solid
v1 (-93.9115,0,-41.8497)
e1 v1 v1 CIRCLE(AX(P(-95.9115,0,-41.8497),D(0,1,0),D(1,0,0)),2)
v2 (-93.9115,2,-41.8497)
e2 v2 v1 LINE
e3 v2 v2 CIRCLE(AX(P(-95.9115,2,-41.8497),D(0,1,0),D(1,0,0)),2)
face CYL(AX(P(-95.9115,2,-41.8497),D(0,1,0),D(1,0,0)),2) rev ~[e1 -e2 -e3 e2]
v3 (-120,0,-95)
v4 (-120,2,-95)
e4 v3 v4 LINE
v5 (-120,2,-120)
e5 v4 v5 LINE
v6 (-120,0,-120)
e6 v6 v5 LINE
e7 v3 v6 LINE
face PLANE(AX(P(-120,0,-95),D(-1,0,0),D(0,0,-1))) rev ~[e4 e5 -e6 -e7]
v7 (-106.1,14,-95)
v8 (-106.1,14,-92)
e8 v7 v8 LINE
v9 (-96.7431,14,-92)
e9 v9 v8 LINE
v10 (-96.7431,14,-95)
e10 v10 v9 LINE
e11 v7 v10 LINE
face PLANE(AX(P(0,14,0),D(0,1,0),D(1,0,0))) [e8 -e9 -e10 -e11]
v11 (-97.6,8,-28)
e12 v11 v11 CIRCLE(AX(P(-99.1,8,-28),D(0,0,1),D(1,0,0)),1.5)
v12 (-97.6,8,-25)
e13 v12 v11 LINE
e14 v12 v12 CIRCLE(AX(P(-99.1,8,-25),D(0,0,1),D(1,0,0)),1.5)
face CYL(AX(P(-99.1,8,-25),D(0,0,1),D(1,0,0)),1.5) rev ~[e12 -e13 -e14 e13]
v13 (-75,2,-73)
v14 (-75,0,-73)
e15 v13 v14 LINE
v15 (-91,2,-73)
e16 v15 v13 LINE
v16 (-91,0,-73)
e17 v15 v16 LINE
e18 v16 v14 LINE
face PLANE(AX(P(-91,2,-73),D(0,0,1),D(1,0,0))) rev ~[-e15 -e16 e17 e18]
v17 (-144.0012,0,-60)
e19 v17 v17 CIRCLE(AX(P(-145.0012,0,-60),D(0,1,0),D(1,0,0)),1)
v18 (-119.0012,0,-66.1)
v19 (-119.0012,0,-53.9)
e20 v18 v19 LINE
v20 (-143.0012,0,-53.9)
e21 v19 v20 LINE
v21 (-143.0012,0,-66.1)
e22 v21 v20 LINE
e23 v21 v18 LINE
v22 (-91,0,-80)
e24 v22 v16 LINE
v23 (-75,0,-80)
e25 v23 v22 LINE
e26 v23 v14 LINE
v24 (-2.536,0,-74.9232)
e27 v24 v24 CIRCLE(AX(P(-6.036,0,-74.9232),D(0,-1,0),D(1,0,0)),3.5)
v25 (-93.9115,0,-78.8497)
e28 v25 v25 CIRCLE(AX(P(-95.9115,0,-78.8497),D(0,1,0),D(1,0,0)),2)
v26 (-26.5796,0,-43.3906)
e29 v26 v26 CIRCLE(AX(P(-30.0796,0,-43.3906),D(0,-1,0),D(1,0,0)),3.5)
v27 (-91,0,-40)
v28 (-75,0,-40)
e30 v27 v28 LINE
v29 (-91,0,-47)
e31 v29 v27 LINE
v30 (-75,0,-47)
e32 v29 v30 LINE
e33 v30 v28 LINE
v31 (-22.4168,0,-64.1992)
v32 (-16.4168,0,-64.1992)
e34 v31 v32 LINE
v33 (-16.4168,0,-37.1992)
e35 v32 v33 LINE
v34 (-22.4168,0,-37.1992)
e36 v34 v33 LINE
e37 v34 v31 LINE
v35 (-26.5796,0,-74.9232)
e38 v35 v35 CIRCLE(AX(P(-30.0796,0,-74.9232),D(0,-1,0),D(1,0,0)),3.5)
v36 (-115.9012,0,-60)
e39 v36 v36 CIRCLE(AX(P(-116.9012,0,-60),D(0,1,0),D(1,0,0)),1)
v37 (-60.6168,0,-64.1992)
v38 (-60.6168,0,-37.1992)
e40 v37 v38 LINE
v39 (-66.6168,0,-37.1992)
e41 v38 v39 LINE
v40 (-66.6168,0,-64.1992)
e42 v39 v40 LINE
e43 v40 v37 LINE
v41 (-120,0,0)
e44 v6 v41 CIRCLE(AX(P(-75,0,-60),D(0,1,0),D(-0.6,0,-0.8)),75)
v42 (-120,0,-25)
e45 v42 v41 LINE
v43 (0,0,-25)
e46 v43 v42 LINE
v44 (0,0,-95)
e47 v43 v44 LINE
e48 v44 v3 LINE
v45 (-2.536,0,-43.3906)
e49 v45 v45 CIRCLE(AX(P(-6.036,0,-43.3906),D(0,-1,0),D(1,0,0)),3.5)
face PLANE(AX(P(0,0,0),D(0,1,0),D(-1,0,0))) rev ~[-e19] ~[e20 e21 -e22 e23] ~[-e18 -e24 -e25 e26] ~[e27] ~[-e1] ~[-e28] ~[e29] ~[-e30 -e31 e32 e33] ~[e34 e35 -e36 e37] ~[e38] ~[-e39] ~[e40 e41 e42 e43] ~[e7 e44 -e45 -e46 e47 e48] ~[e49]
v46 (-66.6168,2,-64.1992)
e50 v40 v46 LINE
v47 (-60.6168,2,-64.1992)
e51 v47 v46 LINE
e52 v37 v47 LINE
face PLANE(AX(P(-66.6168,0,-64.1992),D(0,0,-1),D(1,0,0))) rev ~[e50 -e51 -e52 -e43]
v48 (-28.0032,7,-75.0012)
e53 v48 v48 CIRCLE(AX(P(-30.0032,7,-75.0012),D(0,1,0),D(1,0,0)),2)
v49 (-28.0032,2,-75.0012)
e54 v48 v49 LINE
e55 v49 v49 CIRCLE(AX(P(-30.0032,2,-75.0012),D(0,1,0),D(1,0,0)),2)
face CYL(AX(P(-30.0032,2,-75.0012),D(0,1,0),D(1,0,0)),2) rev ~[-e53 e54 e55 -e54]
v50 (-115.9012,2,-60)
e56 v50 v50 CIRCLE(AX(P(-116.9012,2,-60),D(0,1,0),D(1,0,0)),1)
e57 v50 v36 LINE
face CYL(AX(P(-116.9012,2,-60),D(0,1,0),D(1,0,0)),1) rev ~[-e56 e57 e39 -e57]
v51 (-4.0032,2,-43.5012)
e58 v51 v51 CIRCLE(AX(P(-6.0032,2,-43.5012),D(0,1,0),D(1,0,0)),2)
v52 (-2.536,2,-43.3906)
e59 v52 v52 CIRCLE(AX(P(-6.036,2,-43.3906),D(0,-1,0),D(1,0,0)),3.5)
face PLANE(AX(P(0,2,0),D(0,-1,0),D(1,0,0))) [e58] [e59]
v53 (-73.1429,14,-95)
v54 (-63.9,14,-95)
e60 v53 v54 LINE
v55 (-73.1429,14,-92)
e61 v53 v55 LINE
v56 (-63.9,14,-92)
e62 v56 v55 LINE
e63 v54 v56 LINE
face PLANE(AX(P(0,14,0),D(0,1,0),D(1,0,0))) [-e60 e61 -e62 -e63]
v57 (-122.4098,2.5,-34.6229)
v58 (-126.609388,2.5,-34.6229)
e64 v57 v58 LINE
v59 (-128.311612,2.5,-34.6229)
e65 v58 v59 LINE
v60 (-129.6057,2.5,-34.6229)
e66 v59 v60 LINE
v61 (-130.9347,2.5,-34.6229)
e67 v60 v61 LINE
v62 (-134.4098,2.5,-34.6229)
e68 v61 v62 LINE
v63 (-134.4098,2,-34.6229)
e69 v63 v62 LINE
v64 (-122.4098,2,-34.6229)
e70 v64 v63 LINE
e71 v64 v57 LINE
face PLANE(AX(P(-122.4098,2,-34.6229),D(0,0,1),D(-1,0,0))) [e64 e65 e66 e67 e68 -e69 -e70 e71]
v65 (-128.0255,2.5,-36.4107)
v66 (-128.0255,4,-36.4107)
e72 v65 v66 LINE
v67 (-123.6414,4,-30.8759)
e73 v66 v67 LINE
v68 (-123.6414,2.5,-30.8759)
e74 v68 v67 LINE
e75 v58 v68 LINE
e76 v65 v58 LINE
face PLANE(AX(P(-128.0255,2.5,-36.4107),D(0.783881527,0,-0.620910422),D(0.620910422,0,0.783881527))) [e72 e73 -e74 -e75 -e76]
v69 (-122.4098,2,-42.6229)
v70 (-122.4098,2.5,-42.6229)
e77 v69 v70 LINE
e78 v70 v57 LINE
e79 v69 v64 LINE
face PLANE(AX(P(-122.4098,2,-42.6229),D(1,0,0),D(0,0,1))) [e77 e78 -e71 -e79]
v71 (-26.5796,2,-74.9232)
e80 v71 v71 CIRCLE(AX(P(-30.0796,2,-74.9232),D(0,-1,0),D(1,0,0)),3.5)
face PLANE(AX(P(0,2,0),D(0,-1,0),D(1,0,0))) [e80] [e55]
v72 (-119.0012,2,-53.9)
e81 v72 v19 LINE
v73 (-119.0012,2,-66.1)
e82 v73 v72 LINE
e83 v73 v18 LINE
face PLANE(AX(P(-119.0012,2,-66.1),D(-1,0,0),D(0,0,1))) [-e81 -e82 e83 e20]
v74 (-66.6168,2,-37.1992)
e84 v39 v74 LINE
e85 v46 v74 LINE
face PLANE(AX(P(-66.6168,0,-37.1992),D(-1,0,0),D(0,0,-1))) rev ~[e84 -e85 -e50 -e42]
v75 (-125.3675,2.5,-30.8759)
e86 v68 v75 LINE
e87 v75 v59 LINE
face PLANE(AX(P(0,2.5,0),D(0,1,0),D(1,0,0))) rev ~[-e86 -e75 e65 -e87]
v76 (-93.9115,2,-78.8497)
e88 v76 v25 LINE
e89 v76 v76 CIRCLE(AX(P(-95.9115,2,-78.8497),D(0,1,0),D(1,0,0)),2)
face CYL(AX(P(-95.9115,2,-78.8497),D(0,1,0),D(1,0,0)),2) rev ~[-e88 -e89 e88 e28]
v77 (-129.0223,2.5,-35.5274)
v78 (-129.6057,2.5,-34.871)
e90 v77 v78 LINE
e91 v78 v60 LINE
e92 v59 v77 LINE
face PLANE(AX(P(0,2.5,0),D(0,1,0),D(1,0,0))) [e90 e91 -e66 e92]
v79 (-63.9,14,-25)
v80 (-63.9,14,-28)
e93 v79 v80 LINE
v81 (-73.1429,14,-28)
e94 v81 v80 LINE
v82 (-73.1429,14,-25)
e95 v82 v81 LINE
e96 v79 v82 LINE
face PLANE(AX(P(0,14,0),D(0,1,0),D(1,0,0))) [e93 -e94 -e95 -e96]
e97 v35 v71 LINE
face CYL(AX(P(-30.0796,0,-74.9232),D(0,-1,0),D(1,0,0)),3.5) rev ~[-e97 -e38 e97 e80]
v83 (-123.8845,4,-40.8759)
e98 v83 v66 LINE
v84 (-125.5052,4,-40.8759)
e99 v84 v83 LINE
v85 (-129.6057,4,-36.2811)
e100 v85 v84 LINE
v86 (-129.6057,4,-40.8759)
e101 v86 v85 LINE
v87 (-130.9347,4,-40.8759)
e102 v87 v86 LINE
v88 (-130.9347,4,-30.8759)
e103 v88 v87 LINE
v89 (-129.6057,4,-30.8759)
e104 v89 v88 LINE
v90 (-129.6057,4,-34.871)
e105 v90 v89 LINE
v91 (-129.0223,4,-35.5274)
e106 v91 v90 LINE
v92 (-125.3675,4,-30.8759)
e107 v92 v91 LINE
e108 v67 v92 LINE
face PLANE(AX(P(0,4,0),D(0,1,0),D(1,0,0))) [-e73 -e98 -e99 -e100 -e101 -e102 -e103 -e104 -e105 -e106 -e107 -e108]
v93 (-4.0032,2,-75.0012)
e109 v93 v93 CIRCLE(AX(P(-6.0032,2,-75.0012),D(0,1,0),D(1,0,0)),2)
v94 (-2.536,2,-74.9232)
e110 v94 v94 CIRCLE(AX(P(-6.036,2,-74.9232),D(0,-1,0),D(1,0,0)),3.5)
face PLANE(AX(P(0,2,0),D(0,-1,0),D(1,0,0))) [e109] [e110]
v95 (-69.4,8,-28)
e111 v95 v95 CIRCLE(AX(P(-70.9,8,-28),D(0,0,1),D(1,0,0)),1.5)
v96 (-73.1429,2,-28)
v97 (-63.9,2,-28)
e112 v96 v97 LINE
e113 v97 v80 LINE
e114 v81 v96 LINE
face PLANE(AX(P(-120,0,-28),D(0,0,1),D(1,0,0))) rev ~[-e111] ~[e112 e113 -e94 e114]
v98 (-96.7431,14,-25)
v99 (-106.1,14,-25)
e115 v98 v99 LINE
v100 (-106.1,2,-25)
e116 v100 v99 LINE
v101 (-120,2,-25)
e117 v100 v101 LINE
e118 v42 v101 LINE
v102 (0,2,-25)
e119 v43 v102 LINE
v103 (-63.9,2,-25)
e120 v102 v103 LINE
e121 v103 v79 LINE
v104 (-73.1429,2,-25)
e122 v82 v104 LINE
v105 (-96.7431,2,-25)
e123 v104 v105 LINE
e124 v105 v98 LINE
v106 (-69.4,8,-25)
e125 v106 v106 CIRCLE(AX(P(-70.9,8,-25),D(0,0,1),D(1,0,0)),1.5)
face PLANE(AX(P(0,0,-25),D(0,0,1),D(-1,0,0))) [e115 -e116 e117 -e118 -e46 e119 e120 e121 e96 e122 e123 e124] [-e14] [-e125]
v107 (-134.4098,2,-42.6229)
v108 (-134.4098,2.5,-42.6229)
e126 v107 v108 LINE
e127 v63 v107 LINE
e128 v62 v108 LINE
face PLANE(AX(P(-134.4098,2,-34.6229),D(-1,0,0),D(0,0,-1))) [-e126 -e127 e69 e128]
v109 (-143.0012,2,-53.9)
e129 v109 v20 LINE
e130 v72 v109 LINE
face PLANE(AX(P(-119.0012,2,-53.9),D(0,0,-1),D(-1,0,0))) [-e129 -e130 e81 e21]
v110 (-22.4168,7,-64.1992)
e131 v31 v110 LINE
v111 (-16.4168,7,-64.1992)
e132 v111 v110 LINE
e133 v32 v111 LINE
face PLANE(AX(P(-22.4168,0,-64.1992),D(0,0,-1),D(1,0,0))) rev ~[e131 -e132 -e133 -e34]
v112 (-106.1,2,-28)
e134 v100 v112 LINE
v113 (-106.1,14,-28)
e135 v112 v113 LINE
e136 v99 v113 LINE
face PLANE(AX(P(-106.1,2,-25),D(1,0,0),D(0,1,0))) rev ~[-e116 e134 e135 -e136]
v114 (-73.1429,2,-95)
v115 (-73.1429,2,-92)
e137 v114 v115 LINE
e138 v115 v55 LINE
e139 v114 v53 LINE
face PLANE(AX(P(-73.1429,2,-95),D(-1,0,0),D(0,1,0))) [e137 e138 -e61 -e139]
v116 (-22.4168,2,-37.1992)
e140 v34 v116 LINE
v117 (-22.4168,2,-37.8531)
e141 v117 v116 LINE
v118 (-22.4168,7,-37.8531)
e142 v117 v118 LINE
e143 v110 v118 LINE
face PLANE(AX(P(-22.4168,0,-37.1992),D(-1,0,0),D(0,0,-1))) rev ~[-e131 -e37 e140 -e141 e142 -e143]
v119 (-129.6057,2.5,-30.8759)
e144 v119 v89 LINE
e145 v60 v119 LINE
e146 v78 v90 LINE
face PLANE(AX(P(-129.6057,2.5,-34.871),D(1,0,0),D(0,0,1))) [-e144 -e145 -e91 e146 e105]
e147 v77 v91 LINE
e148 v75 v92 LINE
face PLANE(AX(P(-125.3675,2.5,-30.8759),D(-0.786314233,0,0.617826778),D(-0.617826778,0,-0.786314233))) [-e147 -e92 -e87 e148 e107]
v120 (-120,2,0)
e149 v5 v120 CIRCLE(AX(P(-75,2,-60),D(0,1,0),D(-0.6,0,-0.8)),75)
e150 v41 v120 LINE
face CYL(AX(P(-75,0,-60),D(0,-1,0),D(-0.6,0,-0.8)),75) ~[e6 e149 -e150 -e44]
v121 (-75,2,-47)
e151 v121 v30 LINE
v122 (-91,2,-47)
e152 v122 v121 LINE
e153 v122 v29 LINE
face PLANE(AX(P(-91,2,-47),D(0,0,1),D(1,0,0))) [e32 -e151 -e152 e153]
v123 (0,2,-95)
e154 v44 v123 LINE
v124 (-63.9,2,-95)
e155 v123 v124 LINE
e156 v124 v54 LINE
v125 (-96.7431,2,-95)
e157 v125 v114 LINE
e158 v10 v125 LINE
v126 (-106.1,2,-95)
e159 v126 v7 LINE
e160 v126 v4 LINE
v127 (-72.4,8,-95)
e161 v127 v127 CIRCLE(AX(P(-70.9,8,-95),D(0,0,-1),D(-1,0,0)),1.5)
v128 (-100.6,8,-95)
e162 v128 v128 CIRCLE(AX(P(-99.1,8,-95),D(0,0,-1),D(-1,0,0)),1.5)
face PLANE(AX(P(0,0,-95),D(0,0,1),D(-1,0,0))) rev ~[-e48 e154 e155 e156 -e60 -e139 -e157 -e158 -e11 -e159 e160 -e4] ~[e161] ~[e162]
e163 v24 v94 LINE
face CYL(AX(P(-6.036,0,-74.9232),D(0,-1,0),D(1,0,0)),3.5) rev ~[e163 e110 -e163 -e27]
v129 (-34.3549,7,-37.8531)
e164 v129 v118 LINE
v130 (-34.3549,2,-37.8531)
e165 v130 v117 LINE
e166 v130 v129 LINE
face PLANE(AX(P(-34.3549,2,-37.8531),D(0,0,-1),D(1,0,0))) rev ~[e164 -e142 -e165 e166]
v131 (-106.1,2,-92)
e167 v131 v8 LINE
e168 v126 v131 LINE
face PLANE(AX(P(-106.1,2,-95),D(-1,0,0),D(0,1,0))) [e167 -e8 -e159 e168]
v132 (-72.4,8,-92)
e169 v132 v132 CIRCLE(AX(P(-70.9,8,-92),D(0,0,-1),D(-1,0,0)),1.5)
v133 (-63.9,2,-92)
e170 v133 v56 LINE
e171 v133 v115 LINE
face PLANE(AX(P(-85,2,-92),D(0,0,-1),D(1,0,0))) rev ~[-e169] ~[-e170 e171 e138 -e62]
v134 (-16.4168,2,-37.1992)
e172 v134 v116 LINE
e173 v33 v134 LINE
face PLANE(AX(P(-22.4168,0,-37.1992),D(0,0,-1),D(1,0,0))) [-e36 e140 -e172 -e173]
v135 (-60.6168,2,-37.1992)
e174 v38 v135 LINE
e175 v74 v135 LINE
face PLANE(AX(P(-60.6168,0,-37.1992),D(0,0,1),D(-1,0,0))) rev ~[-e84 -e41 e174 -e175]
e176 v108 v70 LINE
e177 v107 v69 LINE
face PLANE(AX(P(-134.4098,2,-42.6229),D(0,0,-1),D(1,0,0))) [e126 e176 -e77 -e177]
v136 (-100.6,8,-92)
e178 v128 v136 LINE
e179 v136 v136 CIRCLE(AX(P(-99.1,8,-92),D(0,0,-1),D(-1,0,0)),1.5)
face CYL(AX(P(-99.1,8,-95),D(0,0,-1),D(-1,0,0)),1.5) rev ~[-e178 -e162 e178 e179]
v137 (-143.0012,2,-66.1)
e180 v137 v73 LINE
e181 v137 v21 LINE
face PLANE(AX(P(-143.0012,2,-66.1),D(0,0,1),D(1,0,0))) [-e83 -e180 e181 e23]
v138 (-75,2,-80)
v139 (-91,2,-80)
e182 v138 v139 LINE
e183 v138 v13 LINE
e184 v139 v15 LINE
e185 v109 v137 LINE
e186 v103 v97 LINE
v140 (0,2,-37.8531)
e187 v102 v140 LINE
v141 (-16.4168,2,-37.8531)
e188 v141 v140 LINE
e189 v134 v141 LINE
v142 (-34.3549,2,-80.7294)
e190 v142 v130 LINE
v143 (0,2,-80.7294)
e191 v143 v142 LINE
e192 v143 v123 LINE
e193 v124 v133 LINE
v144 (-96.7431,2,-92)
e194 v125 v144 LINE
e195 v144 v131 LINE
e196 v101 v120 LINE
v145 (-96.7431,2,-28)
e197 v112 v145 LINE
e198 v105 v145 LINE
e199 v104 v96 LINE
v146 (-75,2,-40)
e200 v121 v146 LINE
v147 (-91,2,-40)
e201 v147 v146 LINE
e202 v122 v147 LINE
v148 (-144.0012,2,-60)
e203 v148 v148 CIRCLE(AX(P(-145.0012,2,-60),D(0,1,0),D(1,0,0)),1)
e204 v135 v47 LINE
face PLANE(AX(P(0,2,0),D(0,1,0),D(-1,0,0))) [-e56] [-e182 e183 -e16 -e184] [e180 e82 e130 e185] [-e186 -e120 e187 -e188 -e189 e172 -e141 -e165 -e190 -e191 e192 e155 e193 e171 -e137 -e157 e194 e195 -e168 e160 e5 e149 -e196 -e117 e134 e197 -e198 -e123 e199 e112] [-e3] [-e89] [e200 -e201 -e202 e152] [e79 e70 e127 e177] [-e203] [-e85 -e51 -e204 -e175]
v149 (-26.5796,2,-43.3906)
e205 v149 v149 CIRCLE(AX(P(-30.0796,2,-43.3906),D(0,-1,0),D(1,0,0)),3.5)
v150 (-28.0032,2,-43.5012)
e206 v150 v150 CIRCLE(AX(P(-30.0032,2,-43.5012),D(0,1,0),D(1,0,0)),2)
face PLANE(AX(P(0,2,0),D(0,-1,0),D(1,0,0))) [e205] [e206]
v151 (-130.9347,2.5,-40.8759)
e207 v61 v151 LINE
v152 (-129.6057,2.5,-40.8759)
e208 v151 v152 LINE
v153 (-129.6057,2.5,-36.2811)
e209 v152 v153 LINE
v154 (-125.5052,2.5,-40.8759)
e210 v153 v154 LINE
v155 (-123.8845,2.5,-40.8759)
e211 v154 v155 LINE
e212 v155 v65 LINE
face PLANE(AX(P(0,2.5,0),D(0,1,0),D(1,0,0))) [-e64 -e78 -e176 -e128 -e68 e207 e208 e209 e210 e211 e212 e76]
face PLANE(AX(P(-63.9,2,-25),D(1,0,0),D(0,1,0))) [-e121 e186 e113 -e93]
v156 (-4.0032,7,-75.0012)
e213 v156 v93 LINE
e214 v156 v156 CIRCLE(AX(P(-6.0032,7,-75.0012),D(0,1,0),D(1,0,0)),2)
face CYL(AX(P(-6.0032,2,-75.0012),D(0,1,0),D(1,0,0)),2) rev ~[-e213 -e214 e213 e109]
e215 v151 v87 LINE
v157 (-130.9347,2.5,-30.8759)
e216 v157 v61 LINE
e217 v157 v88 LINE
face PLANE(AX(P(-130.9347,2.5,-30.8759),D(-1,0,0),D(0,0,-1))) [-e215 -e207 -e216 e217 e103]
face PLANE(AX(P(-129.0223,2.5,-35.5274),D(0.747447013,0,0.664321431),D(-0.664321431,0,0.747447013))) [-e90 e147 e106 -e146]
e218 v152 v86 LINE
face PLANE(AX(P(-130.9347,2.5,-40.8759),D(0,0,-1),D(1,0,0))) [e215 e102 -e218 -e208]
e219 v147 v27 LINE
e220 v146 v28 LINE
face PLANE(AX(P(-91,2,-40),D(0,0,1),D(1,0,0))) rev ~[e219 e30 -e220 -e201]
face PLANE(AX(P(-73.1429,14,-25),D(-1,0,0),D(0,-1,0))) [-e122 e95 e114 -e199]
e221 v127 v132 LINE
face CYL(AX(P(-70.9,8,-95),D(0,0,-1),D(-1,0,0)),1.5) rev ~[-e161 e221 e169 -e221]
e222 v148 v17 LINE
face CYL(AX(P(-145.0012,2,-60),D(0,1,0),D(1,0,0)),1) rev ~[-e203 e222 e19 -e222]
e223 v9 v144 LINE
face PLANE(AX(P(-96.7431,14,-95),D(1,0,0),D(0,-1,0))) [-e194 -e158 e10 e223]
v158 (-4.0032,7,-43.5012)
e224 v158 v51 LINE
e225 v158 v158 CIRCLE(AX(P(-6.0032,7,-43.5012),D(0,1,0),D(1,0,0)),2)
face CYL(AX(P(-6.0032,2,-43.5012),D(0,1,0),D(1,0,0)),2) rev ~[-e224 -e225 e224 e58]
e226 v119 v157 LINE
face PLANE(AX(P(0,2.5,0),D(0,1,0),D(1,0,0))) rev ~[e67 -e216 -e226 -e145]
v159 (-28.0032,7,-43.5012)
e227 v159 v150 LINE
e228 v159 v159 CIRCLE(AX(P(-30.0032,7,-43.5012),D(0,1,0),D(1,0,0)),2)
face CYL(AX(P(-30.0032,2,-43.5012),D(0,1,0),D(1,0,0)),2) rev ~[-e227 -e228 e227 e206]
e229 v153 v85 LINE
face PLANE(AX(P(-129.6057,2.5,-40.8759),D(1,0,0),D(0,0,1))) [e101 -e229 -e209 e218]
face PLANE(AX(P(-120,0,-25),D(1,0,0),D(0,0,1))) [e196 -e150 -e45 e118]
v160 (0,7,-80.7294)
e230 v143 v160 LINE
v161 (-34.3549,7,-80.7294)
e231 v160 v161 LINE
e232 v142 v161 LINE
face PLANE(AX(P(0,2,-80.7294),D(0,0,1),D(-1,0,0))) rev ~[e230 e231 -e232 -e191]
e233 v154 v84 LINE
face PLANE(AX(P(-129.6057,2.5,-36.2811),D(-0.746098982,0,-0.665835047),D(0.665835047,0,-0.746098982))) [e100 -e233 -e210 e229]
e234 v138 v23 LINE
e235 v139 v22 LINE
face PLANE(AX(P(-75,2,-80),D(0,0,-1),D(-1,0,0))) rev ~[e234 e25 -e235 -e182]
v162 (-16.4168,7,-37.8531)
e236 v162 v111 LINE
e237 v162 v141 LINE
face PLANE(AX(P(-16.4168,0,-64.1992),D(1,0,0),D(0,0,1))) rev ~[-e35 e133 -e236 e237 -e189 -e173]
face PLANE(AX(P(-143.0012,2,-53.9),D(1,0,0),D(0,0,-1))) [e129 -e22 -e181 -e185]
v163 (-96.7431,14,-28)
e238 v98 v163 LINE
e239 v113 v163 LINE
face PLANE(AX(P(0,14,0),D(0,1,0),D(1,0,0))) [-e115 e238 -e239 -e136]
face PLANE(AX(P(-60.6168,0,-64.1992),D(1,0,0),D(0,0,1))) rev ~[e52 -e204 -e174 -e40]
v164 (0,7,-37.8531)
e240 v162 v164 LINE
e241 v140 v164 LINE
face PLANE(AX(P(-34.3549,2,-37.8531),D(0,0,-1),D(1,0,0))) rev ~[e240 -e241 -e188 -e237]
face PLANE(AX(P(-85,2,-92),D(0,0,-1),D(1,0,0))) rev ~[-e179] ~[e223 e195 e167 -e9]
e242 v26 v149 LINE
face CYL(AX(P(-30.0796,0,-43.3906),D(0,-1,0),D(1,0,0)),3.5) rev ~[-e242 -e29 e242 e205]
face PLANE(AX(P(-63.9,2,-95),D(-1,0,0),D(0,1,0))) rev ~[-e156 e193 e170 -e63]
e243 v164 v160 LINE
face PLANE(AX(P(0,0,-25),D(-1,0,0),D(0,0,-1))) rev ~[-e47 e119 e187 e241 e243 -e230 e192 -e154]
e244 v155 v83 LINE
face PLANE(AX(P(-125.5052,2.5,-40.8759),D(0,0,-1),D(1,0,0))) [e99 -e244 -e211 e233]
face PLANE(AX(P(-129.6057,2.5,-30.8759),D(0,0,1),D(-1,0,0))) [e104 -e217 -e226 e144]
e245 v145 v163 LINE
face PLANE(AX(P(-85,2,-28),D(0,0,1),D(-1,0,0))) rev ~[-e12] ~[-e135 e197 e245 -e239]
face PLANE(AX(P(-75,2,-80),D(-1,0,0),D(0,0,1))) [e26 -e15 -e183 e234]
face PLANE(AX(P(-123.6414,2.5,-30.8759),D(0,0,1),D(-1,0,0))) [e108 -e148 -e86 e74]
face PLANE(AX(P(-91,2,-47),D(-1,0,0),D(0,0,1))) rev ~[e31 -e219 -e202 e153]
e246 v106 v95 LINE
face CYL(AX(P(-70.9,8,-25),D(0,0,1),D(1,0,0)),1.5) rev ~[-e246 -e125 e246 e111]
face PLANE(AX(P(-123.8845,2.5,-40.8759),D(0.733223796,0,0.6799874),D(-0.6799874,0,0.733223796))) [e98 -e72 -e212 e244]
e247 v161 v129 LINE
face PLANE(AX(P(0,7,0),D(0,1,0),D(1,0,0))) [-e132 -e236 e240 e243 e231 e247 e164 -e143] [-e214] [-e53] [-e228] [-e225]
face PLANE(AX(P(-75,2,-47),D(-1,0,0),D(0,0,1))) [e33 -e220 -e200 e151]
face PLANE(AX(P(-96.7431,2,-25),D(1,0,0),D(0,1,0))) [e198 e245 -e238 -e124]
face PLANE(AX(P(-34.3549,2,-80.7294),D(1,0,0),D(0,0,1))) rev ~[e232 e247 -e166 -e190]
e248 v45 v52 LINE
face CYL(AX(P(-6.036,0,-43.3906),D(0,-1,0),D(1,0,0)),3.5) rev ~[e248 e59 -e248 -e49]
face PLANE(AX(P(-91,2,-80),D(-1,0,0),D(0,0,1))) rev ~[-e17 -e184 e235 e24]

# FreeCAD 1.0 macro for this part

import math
import FreeCAD as App
import Part
import Sketcher

V = App.Vector
Q = App.Units.Quantity

doc = App.newDocument("Part")
body = doc.addObject("PartDesign::Body", "Body")

sketch1 = doc.addObject("Sketcher::SketchObject", "Sketch")
body.addObject(sketch1)
sketch1.AttachmentSupport = (doc.XZ_Plane, [""])
sketch1.MapMode = "FlatFace"
sketch1.addGeometry([
    Part.LineSegment(V(-120, -95, 0), V(-120, -120, 0)),
    Part.ArcOfCircle(Part.Circle(V(-75, -60, 0), V(0, 0, 1), 75), math.radians(126.869898), math.radians(233.130102)),
    Part.LineSegment(V(-120, 0, 0), V(-120, -25, 0)),
    Part.LineSegment(V(-120, -25, 0), V(0, -25, 0)),
    Part.LineSegment(V(0, -25, 0), V(0, -95, 0)),
    Part.LineSegment(V(0, -95, 0), V(-120, -95, 0)),
], False)
sketch1.addConstraint([
    Sketcher.Constraint("Coincident", 0, 2, 1, 2),
    Sketcher.Constraint("Coincident", 1, 1, 2, 1),
    Sketcher.Constraint("Coincident", 2, 2, 3, 1),
    Sketcher.Constraint("Coincident", 3, 2, 4, 1),
    Sketcher.Constraint("Coincident", 4, 2, 5, 1),
    Sketcher.Constraint("Coincident", 5, 2, 0, 1),
    Sketcher.Constraint("Vertical", 0),
    Sketcher.Constraint("Vertical", 2),
    Sketcher.Constraint("Horizontal", 3),
    Sketcher.Constraint("Vertical", 4),
    Sketcher.Constraint("Horizontal", 5),
    Sketcher.Constraint("PointOnObject", 1, 1, -1),
    Sketcher.Constraint("PointOnObject", 3, 2, -2),
    Sketcher.Constraint("Vertical", 0, 2, 1, 1),
    Sketcher.Constraint("Equal", 0, 2),
    Sketcher.Constraint("Radius", 1, Q("75 mm")),
    Sketcher.Constraint("DistanceX", 3, 1, 3, 2, Q("120 mm")),
    Sketcher.Constraint("DistanceY", 0, 2, 0, 1, Q("25 mm")),
    Sketcher.Constraint("DistanceX", 1, 3, -1, 1, Q("75 mm")),
])
pad1 = doc.addObject("PartDesign::Pad", "Pad")
body.addObject(pad1)
pad1.Profile = sketch1
pad1.Length = 2
pad1.Reversed = True

sketch2 = doc.addObject("Sketcher::SketchObject", "Sketch001")
body.addObject(sketch2)
sketch2.AttachmentSupport = (doc.XZ_Plane, [""])
sketch2.MapMode = "FlatFace"
sketch2.AttachmentOffset = App.Placement(V(0, 0, -2), App.Rotation())
sketch2.addGeometry([
    Part.Circle(V(-30.0032, -43.5012, 0), V(0, 0, 1), 2),
    Part.Circle(V(-30.0032, -75.0012, 0), V(0, 0, 1), 2),
    Part.Circle(V(-6.0032, -75.0012, 0), V(0, 0, 1), 2),
    Part.Circle(V(-6.0032, -43.5012, 0), V(0, 0, 1), 2),
], False)
sketch2.addConstraint([
    Sketcher.Constraint("Equal", 0, 1),
    Sketcher.Constraint("Equal", 1, 2),
    Sketcher.Constraint("Equal", 2, 3),
    Sketcher.Constraint("Horizontal", 1, 3, 2, 3),
    Sketcher.Constraint("Horizontal", 0, 3, 3, 3),
    Sketcher.Constraint("Vertical", 0, 3, 1, 3),
    Sketcher.Constraint("Vertical", 2, 3, 3, 3),
    Sketcher.Constraint("Diameter", 0, Q("4 mm")),
    Sketcher.Constraint("DistanceX", 1, 3, 2, 3, Q("24 mm")),
    Sketcher.Constraint("DistanceY", 1, 3, 0, 3, Q("31.5 mm")),
    Sketcher.Constraint("DistanceX", 2, 3, -1, 1, Q("6.0032 mm")),
    Sketcher.Constraint("DistanceY", 0, 3, -1, 1, Q("43.5012 mm")),
])
pocket1 = doc.addObject("PartDesign::Pocket", "Pocket")
body.addObject(pocket1)
pocket1.Profile = sketch2
pocket1.Length = 11
pocket1.Reversed = True

sketch3 = doc.addObject("Sketcher::SketchObject", "Sketch002")
body.addObject(sketch3)
sketch3.AttachmentSupport = (doc.XZ_Plane, [""])
sketch3.MapMode = "FlatFace"
sketch3.AttachmentOffset = App.Placement(V(0, 0, -2), App.Rotation())
sketch3.addGeometry([
    Part.LineSegment(V(-75, -73, 0), V(-75, -80, 0)),
    Part.LineSegment(V(-75, -80, 0), V(-91, -80, 0)),
    Part.LineSegment(V(-91, -80, 0), V(-91, -73, 0)),
    Part.LineSegment(V(-91, -73, 0), V(-75, -73, 0)),
    Part.LineSegment(V(-91, -47, 0), V(-91, -40, 0)),
    Part.LineSegment(V(-91, -40, 0), V(-75, -40, 0)),
    Part.LineSegment(V(-75, -40, 0), V(-75, -47, 0)),
    Part.LineSegment(V(-75, -47, 0), V(-91, -47, 0)),
], False)
sketch3.addConstraint([
    Sketcher.Constraint("Coincident", 0, 2, 1, 1),
    Sketcher.Constraint("Coincident", 1, 2, 2, 1),
    Sketcher.Constraint("Coincident", 2, 2, 3, 1),
    Sketcher.Constraint("Coincident", 3, 2, 0, 1),
    Sketcher.Constraint("Coincident", 4, 2, 5, 1),
    Sketcher.Constraint("Coincident", 5, 2, 6, 1),
    Sketcher.Constraint("Coincident", 6, 2, 7, 1),
    Sketcher.Constraint("Coincident", 7, 2, 4, 1),
    Sketcher.Constraint("Vertical", 0),
    Sketcher.Constraint("Horizontal", 1),
    Sketcher.Constraint("Vertical", 2),
    Sketcher.Constraint("Horizontal", 3),
    Sketcher.Constraint("Vertical", 4),
    Sketcher.Constraint("Horizontal", 5),
    Sketcher.Constraint("Vertical", 6),
    Sketcher.Constraint("Horizontal", 7),
    Sketcher.Constraint("Vertical", 2, 2, 4, 2),
    Sketcher.Constraint("Vertical", 3, 2, 5, 2),
    Sketcher.Constraint("Equal", 2, 4),
    Sketcher.Constraint("DistanceX", 1, 2, 1, 1, Q("16 mm")),
    Sketcher.Constraint("DistanceY", 0, 2, 0, 1, Q("7 mm")),
    Sketcher.Constraint("DistanceX", 0, 2, -1, 1, Q("75 mm")),
    Sketcher.Constraint("DistanceY", 0, 2, -1, 1, Q("80 mm")),
    Sketcher.Constraint("DistanceY", 4, 2, -1, 1, Q("40 mm")),
])
pocket2 = doc.addObject("PartDesign::Pocket", "Pocket001")
body.addObject(pocket2)
pocket2.Profile = sketch3
pocket2.Length = 3
pocket2.Reversed = True

sketch4 = doc.addObject("Sketcher::SketchObject", "Sketch003")
body.addObject(sketch4)
sketch4.AttachmentSupport = (doc.XZ_Plane, [""])
sketch4.MapMode = "FlatFace"
sketch4.AttachmentOffset = App.Placement(V(0, 0, -2), App.Rotation())
sketch4.addGeometry([
    Part.LineSegment(V(-101.1, -25, 0), V(-68.9, -25, 0)),
    Part.LineSegment(V(-68.9, -25, 0), V(-68.9, -28, 0)),
    Part.LineSegment(V(-68.9, -28, 0), V(-101.1, -28, 0)),
    Part.LineSegment(V(-101.1, -28, 0), V(-101.1, -25, 0)),
    Part.LineSegment(V(-68.9, -95, 0), V(-101.1, -95, 0)),
    Part.LineSegment(V(-101.1, -95, 0), V(-101.1, -92, 0)),
    Part.LineSegment(V(-101.1, -92, 0), V(-68.9, -92, 0)),
    Part.LineSegment(V(-68.9, -92, 0), V(-68.9, -95, 0)),
], False)
sketch4.addConstraint([
    Sketcher.Constraint("Coincident", 0, 2, 1, 1),
    Sketcher.Constraint("Coincident", 1, 2, 2, 1),
    Sketcher.Constraint("Coincident", 2, 2, 3, 1),
    Sketcher.Constraint("Coincident", 3, 2, 0, 1),
    Sketcher.Constraint("Coincident", 4, 2, 5, 1),
    Sketcher.Constraint("Coincident", 5, 2, 6, 1),
    Sketcher.Constraint("Coincident", 6, 2, 7, 1),
    Sketcher.Constraint("Coincident", 7, 2, 4, 1),
    Sketcher.Constraint("Horizontal", 0),
    Sketcher.Constraint("Vertical", 1),
    Sketcher.Constraint("Horizontal", 2),
    Sketcher.Constraint("Vertical", 3),
    Sketcher.Constraint("Horizontal", 4),
    Sketcher.Constraint("Vertical", 5),
    Sketcher.Constraint("Horizontal", 6),
    Sketcher.Constraint("Vertical", 7),
    Sketcher.Constraint("Vertical", 3, 2, 4, 2),
    Sketcher.Constraint("Vertical", 1, 2, 6, 2),
    Sketcher.Constraint("Equal", 3, 5),
    Sketcher.Constraint("DistanceY", 1, 2, 1, 1, Q("3 mm")),
    Sketcher.Constraint("DistanceY", 4, 2, 2, 2, Q("67 mm")),
    Sketcher.Constraint("DistanceX", 0, 2, -1, 1, Q("68.9 mm")),
    Sketcher.Constraint("DistanceX", 0, 1, 0, 2, Q("32.2 mm")),
    Sketcher.Constraint("DistanceY", 0, 2, -1, 1, Q("25 mm")),
])
pad2 = doc.addObject("PartDesign::Pad", "Pad001")
body.addObject(pad2)
pad2.Profile = sketch4
pad2.Length = 12
pad2.Reversed = True

sketch5 = doc.addObject("Sketcher::SketchObject", "Sketch004")
body.addObject(sketch5)
sketch5.AttachmentSupport = (doc.XY_Plane, [""])
sketch5.MapMode = "FlatFace"
sketch5.AttachmentOffset = App.Placement(V(0, 0, -25), App.Rotation())
sketch5.addGeometry([
    Part.Circle(V(-99.1, 8, 0), V(0, 0, 1), 1.5),
    Part.Circle(V(-70.9, 8, 0), V(0, 0, 1), 1.5),
], False)
sketch5.addConstraint([
    Sketcher.Constraint("Equal", 0, 1),
    Sketcher.Constraint("Horizontal", 0, 3, 1, 3),
    Sketcher.Constraint("Diameter", 0, Q("3 mm")),
    Sketcher.Constraint("DistanceY", -1, 1, 0, 3, Q("8 mm")),
    Sketcher.Constraint("DistanceX", 0, 3, -1, 1, Q("99.1 mm")),
    Sketcher.Constraint("DistanceX", 1, 3, -1, 1, Q("70.9 mm")),
])
pocket3 = doc.addObject("PartDesign::Pocket", "Pocket002")
body.addObject(pocket3)
pocket3.Profile = sketch5
pocket3.Length = 3

sketch6 = doc.addObject("Sketcher::SketchObject", "Sketch005")
body.addObject(sketch6)
sketch6.AttachmentSupport = (doc.XY_Plane, [""])
sketch6.MapMode = "FlatFace"
sketch6.AttachmentOffset = App.Placement(V(0, 0, -95), App.Rotation())
sketch6.addGeometry([
    Part.Circle(V(-70.9, 8, 0), V(0, 0, 1), 1.5),
    Part.Circle(V(-99.1, 8, 0), V(0, 0, 1), 1.5),
], False)
sketch6.addConstraint([
    Sketcher.Constraint("Equal", 0, 1),
    Sketcher.Constraint("Horizontal", 0, 3, 1, 3),
    Sketcher.Constraint("Diameter", 0, Q("3 mm")),
    Sketcher.Constraint("DistanceY", -1, 1, 0, 3, Q("8 mm")),
    Sketcher.Constraint("DistanceX", 0, 3, -1, 1, Q("70.9 mm")),
    Sketcher.Constraint("DistanceX", 1, 3, -1, 1, Q("99.1 mm")),
])
pocket4 = doc.addObject("PartDesign::Pocket", "Pocket003")
body.addObject(pocket4)
pocket4.Profile = sketch6
pocket4.Length = 3
pocket4.Reversed = True

sketch7 = doc.addObject("Sketcher::SketchObject", "Sketch006")
body.addObject(sketch7)
sketch7.AttachmentSupport = (doc.XZ_Plane, [""])
sketch7.MapMode = "FlatFace"
sketch7.AttachmentOffset = App.Placement(V(0, 0, -2), App.Rotation())
sketch7.addGeometry([
    Part.Circle(V(-145.0012, -60, 0), V(0, 0, 1), 1),
    Part.Circle(V(-116.9012, -60, 0), V(0, 0, 1), 1),
], False)
sketch7.addConstraint([
    Sketcher.Constraint("Equal", 0, 1),
    Sketcher.Constraint("Horizontal", 0, 3, 1, 3),
    Sketcher.Constraint("Diameter", 0, Q("2 mm")),
    Sketcher.Constraint("DistanceX", 0, 3, 1, 3, Q("28.1 mm")),
    Sketcher.Constraint("DistanceY", 0, 3, -1, 1, Q("60 mm")),
    Sketcher.Constraint("DistanceX", 0, 3, -1, 1, Q("145.0012 mm")),
])
pocket5 = doc.addObject("PartDesign::Pocket", "Pocket004")
body.addObject(pocket5)
pocket5.Profile = sketch7
pocket5.Length = 3
pocket5.Reversed = True

sketch8 = doc.addObject("Sketcher::SketchObject", "Sketch007")
body.addObject(sketch8)
sketch8.AttachmentSupport = (doc.XZ_Plane, [""])
sketch8.MapMode = "FlatFace"
sketch8.AttachmentOffset = App.Placement(V(0, 0, -2), App.Rotation())
sketch8.addGeometry([
    Part.LineSegment(V(-143.0012, -66.1, 0), V(-143.0012, -53.9, 0)),
    Part.LineSegment(V(-143.0012, -53.9, 0), V(-119.0012, -53.9, 0)),
    Part.LineSegment(V(-119.0012, -53.9, 0), V(-119.0012, -66.1, 0)),
    Part.LineSegment(V(-119.0012, -66.1, 0), V(-143.0012, -66.1, 0)),
], False)
sketch8.addConstraint([
    Sketcher.Constraint("Coincident", 0, 2, 1, 1),
    Sketcher.Constraint("Coincident", 1, 2, 2, 1),
    Sketcher.Constraint("Coincident", 2, 2, 3, 1),
    Sketcher.Constraint("Coincident", 3, 2, 0, 1),
    Sketcher.Constraint("Vertical", 0),
    Sketcher.Constraint("Horizontal", 1),
    Sketcher.Constraint("Vertical", 2),
    Sketcher.Constraint("Horizontal", 3),
    Sketcher.Constraint("DistanceX", 1, 1, 1, 2, Q("24 mm")),
    Sketcher.Constraint("DistanceY", 0, 1, 0, 2, Q("12.2 mm")),
    Sketcher.Constraint("DistanceY", 0, 2, -1, 1, Q("53.9 mm")),
    Sketcher.Constraint("DistanceX", 0, 2, -1, 1, Q("143.0012 mm")),
])
pocket6 = doc.addObject("PartDesign::Pocket", "Pocket005")
body.addObject(pocket6)
pocket6.Profile = sketch8
pocket6.Length = 2
pocket6.Reversed = True

sketch9 = doc.addObject("Sketcher::SketchObject", "Sketch008")
body.addObject(sketch9)
sketch9.AttachmentSupport = (doc.XZ_Plane, [""])
sketch9.MapMode = "FlatFace"
sketch9.AttachmentOffset = App.Placement(V(0, 0, -2), App.Rotation())
sketch9.addGeometry([
    Part.LineSegment(V(-34.3549, -37.8531, 0), V(0, -37.8531, 0)),
    Part.LineSegment(V(0, -37.8531, 0), V(0, -80.7294, 0)),
    Part.LineSegment(V(0, -80.7294, 0), V(-34.3549, -80.7294, 0)),
    Part.LineSegment(V(-34.3549, -80.7294, 0), V(-34.3549, -37.8531, 0)),
], False)
sketch9.addConstraint([
    Sketcher.Constraint("Coincident", 0, 2, 1, 1),
    Sketcher.Constraint("Coincident", 1, 2, 2, 1),
    Sketcher.Constraint("Coincident", 2, 2, 3, 1),
    Sketcher.Constraint("Coincident", 3, 2, 0, 1),
    Sketcher.Constraint("Horizontal", 0),
    Sketcher.Constraint("Vertical", 1),
    Sketcher.Constraint("Horizontal", 2),
    Sketcher.Constraint("Vertical", 3),
    Sketcher.Constraint("PointOnObject", 0, 2, -2),
    Sketcher.Constraint("DistanceX", 0, 1, 0, 2, Q("34.355 mm")),
    Sketcher.Constraint("DistanceY", 1, 2, 1, 1, Q("42.8763 mm")),
    Sketcher.Constraint("DistanceY", 0, 2, -1, 1, Q("37.853 mm")),
])
pad3 = doc.addObject("PartDesign::Pad", "Pad002")
body.addObject(pad3)
pad3.Profile = sketch9
pad3.Length = 5
pad3.Reversed = True

sketch10 = doc.addObject("Sketcher::SketchObject", "Sketch009")
body.addObject(sketch10)
sketch10.AttachmentSupport = (doc.XZ_Plane, [""])
sketch10.MapMode = "FlatFace"
sketch10.AttachmentOffset = App.Placement(V(0, 0, -7), App.Rotation())
sketch10.addGeometry([
    Part.Circle(V(-30.0032, -43.5012, 0), V(0, 0, 1), 2),
    Part.Circle(V(-30.0032, -75.0012, 0), V(0, 0, 1), 2),
    Part.Circle(V(-6.0032, -43.5012, 0), V(0, 0, 1), 2),
    Part.Circle(V(-6.0032, -75.0012, 0), V(0, 0, 1), 2),
], False)
sketch10.addConstraint([
    Sketcher.Constraint("Equal", 0, 1),
    Sketcher.Constraint("Equal", 1, 2),
    Sketcher.Constraint("Equal", 2, 3),
    Sketcher.Constraint("Horizontal", 0, 3, 2, 3),
    Sketcher.Constraint("Horizontal", 1, 3, 3, 3),
    Sketcher.Constraint("Vertical", 0, 3, 1, 3),
    Sketcher.Constraint("Vertical", 2, 3, 3, 3),
    Sketcher.Constraint("Diameter", 0, Q("4 mm")),
    Sketcher.Constraint("DistanceX", 0, 3, 2, 3, Q("24 mm")),
    Sketcher.Constraint("DistanceY", 1, 3, 0, 3, Q("31.5 mm")),
    Sketcher.Constraint("DistanceX", 0, 3, -1, 1, Q("30.0032 mm")),
    Sketcher.Constraint("DistanceY", 0, 3, -1, 1, Q("43.5012 mm")),
])
pocket7 = doc.addObject("PartDesign::Pocket", "Pocket006")
body.addObject(pocket7)
pocket7.Profile = sketch10
pocket7.Length = 11
pocket7.Reversed = True

sketch11 = doc.addObject("Sketcher::SketchObject", "Sketch010")
body.addObject(sketch11)
sketch11.AttachmentSupport = (doc.XZ_Plane, [""])
sketch11.MapMode = "FlatFace"
sketch11.AttachmentOffset = App.Placement(V(0, 0, -2), App.Rotation())
sketch11.addGeometry([
    Part.LineSegment(V(-134.4098, -34.6229, 0), V(-122.4098, -34.6229, 0)),
    Part.LineSegment(V(-122.4098, -34.6229, 0), V(-122.4098, -42.6229, 0)),
    Part.LineSegment(V(-122.4098, -42.6229, 0), V(-134.4098, -42.6229, 0)),
    Part.LineSegment(V(-134.4098, -42.6229, 0), V(-134.4098, -34.6229, 0)),
], False)
sketch11.addConstraint([
    Sketcher.Constraint("Coincident", 0, 2, 1, 1),
    Sketcher.Constraint("Coincident", 1, 2, 2, 1),
    Sketcher.Constraint("Coincident", 2, 2, 3, 1),
    Sketcher.Constraint("Coincident", 3, 2, 0, 1),
    Sketcher.Constraint("Horizontal", 0),
    Sketcher.Constraint("Vertical", 1),
    Sketcher.Constraint("Horizontal", 2),
    Sketcher.Constraint("Vertical", 3),
    Sketcher.Constraint("DistanceX", 0, 1, 0, 2, Q("12 mm")),
    Sketcher.Constraint("DistanceY", 1, 2, 1, 1, Q("8 mm")),
    Sketcher.Constraint("DistanceY", 0, 2, -1, 1, Q("34.623 mm")),
    Sketcher.Constraint("DistanceX", 0, 2, -1, 1, Q("122.4098 mm")),
])
pad4 = doc.addObject("PartDesign::Pad", "Pad003")
body.addObject(pad4)
pad4.Profile = sketch11
pad4.Length = 0.5
pad4.Reversed = True

sketch12 = doc.addObject("Sketcher::SketchObject", "Sketch011")
body.addObject(sketch12)
sketch12.AttachmentSupport = (doc.XZ_Plane, [""])
sketch12.MapMode = "FlatFace"
sketch12.AttachmentOffset = App.Placement(V(0, 0, -2.5), App.Rotation())
sketch12.addGeometry([
    Part.LineSegment(V(-125.3675, -30.8759, 0), V(-123.6414, -30.8759, 0)),
    Part.LineSegment(V(-123.6414, -30.8759, 0), V(-128.0255, -36.4107, 0)),
    Part.LineSegment(V(-128.0255, -36.4107, 0), V(-123.8845, -40.8759, 0)),
    Part.LineSegment(V(-123.8845, -40.8759, 0), V(-125.5052, -40.8759, 0)),
    Part.LineSegment(V(-125.5052, -40.8759, 0), V(-129.6057, -36.2811, 0)),
    Part.LineSegment(V(-129.6057, -36.2811, 0), V(-129.6057, -40.8759, 0)),
    Part.LineSegment(V(-129.6057, -40.8759, 0), V(-130.9347, -40.8759, 0)),
    Part.LineSegment(V(-130.9347, -40.8759, 0), V(-130.9347, -30.8759, 0)),
    Part.LineSegment(V(-130.9347, -30.8759, 0), V(-129.6057, -30.8759, 0)),
    Part.LineSegment(V(-129.6057, -30.8759, 0), V(-129.6057, -34.871, 0)),
    Part.LineSegment(V(-129.6057, -34.871, 0), V(-129.0223, -35.5274, 0)),
    Part.LineSegment(V(-129.0223, -35.5274, 0), V(-125.3675, -30.8759, 0)),
], False)
sketch12.addConstraint([
    Sketcher.Constraint("Coincident", 0, 2, 1, 1),
    Sketcher.Constraint("Coincident", 1, 2, 2, 1),
    Sketcher.Constraint("Coincident", 2, 2, 3, 1),
    Sketcher.Constraint("Coincident", 3, 2, 4, 1),
    Sketcher.Constraint("Coincident", 4, 2, 5, 1),
    Sketcher.Constraint("Coincident", 5, 2, 6, 1),
    Sketcher.Constraint("Coincident", 6, 2, 7, 1),
    Sketcher.Constraint("Coincident", 7, 2, 8, 1),
    Sketcher.Constraint("Coincident", 8, 2, 9, 1),
    Sketcher.Constraint("Coincident", 9, 2, 10, 1),
    Sketcher.Constraint("Coincident", 10, 2, 11, 1),
    Sketcher.Constraint("Coincident", 11, 2, 0, 1),
    Sketcher.Constraint("Horizontal", 0),
    Sketcher.Constraint("Horizontal", 3),
    Sketcher.Constraint("Vertical", 5),
    Sketcher.Constraint("Horizontal", 6),
    Sketcher.Constraint("Vertical", 7),
    Sketcher.Constraint("Horizontal", 8),
    Sketcher.Constraint("Vertical", 9),
    Sketcher.Constraint("Horizontal", 3, 2, 5, 2),
    Sketcher.Constraint("Horizontal", 0, 2, 7, 2),
    Sketcher.Constraint("Vertical", 5, 2, 8, 2),
    Sketcher.Constraint("DistanceY", 7, 1, 7, 2, Q("10 mm")),
    Sketcher.Constraint("DistanceY", 2, 2, -1, 1, Q("40.876 mm")),
    Sketcher.Constraint("Angle", 10, Q("-48.3697 deg")),
    Sketcher.Constraint("DistanceX", 0, 1, 0, 2, Q("1.726 mm")),
    Sketcher.Constraint("DistanceX", 6, 2, 6, 1, Q("1.329 mm")),
    Sketcher.Constraint("DistanceY", 9, 2, 9, 1, Q("3.995 mm")),
    Sketcher.Constraint("DistanceY", 4, 2, 9, 2, Q("1.41 mm")),
    Sketcher.Constraint("DistanceX", 3, 2, 3, 1, Q("1.6207 mm")),
    Sketcher.Constraint("DistanceX", 1, 2, 0, 2, Q("4.384 mm")),
    Sketcher.Constraint("DistanceX", 1, 2, 2, 2, Q("4.141 mm")),
    Sketcher.Constraint("Distance", 1, Q("7.0608 mm")),
    Sketcher.Constraint("Distance", 4, Q("6.1584 mm")),
    Sketcher.Constraint("Distance", 10, Q("0.8782 mm")),
    Sketcher.Constraint("DistanceX", 0, 2, -1, 1, Q("123.6414 mm")),
])
pad5 = doc.addObject("PartDesign::Pad", "Pad004")
body.addObject(pad5)
pad5.Profile = sketch12
pad5.Length = 1.5
pad5.Reversed = True

sketch13 = doc.addObject("Sketcher::SketchObject", "Sketch012")
body.addObject(sketch13)
sketch13.AttachmentSupport = (doc.XY_Plane, [""])
sketch13.MapMode = "FlatFace"
sketch13.AttachmentOffset = App.Placement(V(0, 0, -25), App.Rotation())
sketch13.addGeometry([
    Part.LineSegment(V(-73.1429, 14, 0), V(-96.7431, 14, 0)),
    Part.LineSegment(V(-96.7431, 14, 0), V(-96.7431, 2, 0)),
    Part.LineSegment(V(-96.7431, 2, 0), V(-73.1429, 2, 0)),
    Part.LineSegment(V(-73.1429, 2, 0), V(-73.1429, 14, 0)),
], False)
sketch13.addConstraint([
    Sketcher.Constraint("Coincident", 0, 2, 1, 1),
    Sketcher.Constraint("Coincident", 1, 2, 2, 1),
    Sketcher.Constraint("Coincident", 2, 2, 3, 1),
    Sketcher.Constraint("Coincident", 3, 2, 0, 1),
    Sketcher.Constraint("Horizontal", 0),
    Sketcher.Constraint("Vertical", 1),
    Sketcher.Constraint("Horizontal", 2),
    Sketcher.Constraint("Vertical", 3),
    Sketcher.Constraint("DistanceY", 1, 2, 1, 1, Q("12 mm")),
    Sketcher.Constraint("DistanceX", 0, 2, 0, 1, Q("23.6002 mm")),
    Sketcher.Constraint("DistanceX", 2, 2, -1, 1, Q("73.143 mm")),
    Sketcher.Constraint("DistanceY", -1, 1, 0, 2, Q("14 mm")),
])
pocket8 = doc.addObject("PartDesign::Pocket", "Pocket007")
body.addObject(pocket8)
pocket8.Profile = sketch13
pocket8.Length = 3

sketch14 = doc.addObject("Sketcher::SketchObject", "Sketch013")
body.addObject(sketch14)
sketch14.AttachmentSupport = (doc.XY_Plane, [""])
sketch14.MapMode = "FlatFace"
sketch14.AttachmentOffset = App.Placement(V(0, 0, -25), App.Rotation())
sketch14.addGeometry([
    Part.LineSegment(V(-106.1, 2, 0), V(-101.1, 2, 0)),
    Part.LineSegment(V(-101.1, 2, 0), V(-101.1, 14, 0)),
    Part.LineSegment(V(-101.1, 14, 0), V(-106.1, 14, 0)),
    Part.LineSegment(V(-106.1, 14, 0), V(-106.1, 2, 0)),
    Part.LineSegment(V(-68.9, 14, 0), V(-68.9, 2, 0)),
    Part.LineSegment(V(-68.9, 2, 0), V(-63.9, 2, 0)),
    Part.LineSegment(V(-63.9, 2, 0), V(-63.9, 14, 0)),
    Part.LineSegment(V(-63.9, 14, 0), V(-68.9, 14, 0)),
], False)
sketch14.addConstraint([
    Sketcher.Constraint("Coincident", 0, 2, 1, 1),
    Sketcher.Constraint("Coincident", 1, 2, 2, 1),
    Sketcher.Constraint("Coincident", 2, 2, 3, 1),
    Sketcher.Constraint("Coincident", 3, 2, 0, 1),
    Sketcher.Constraint("Coincident", 4, 2, 5, 1),
    Sketcher.Constraint("Coincident", 5, 2, 6, 1),
    Sketcher.Constraint("Coincident", 6, 2, 7, 1),
    Sketcher.Constraint("Coincident", 7, 2, 4, 1),
    Sketcher.Constraint("Horizontal", 0),
    Sketcher.Constraint("Vertical", 1),
    Sketcher.Constraint("Horizontal", 2),
    Sketcher.Constraint("Vertical", 3),
    Sketcher.Constraint("Vertical", 4),
    Sketcher.Constraint("Horizontal", 5),
    Sketcher.Constraint("Vertical", 6),
    Sketcher.Constraint("Horizontal", 7),
    Sketcher.Constraint("Horizontal", 3, 2, 4, 2),
    Sketcher.Constraint("Horizontal", 2, 2, 6, 2),
    Sketcher.Constraint("Equal", 2, 5),
    Sketcher.Constraint("DistanceX", 0, 1, 0, 2, Q("5 mm")),
    Sketcher.Constraint("DistanceY", 1, 1, 1, 2, Q("12 mm")),
    Sketcher.Constraint("DistanceY", -1, 1, 0, 2, Q("2 mm")),
    Sketcher.Constraint("DistanceX", 0, 2, -1, 1, Q("101.1 mm")),
    Sketcher.Constraint("DistanceX", 4, 2, -1, 1, Q("68.9 mm")),
])
pad6 = doc.addObject("PartDesign::Pad", "Pad005")
body.addObject(pad6)
pad6.Profile = sketch14
pad6.Length = 3
pad6.Reversed = True

sketch15 = doc.addObject("Sketcher::SketchObject", "Sketch014")
body.addObject(sketch15)
sketch15.AttachmentSupport = (doc.XY_Plane, [""])
sketch15.MapMode = "FlatFace"
sketch15.AttachmentOffset = App.Placement(V(0, 0, -95), App.Rotation())
sketch15.addGeometry([
    Part.LineSegment(V(-96.7431, 14, 0), V(-73.1429, 14, 0)),
    Part.LineSegment(V(-73.1429, 14, 0), V(-73.1429, 2, 0)),
    Part.LineSegment(V(-73.1429, 2, 0), V(-96.7431, 2, 0)),
    Part.LineSegment(V(-96.7431, 2, 0), V(-96.7431, 14, 0)),
], False)
sketch15.addConstraint([
    Sketcher.Constraint("Coincident", 0, 2, 1, 1),
    Sketcher.Constraint("Coincident", 1, 2, 2, 1),
    Sketcher.Constraint("Coincident", 2, 2, 3, 1),
    Sketcher.Constraint("Coincident", 3, 2, 0, 1),
    Sketcher.Constraint("Horizontal", 0),
    Sketcher.Constraint("Vertical", 1),
    Sketcher.Constraint("Horizontal", 2),
    Sketcher.Constraint("Vertical", 3),
    Sketcher.Constraint("DistanceY", 1, 2, 1, 1, Q("12 mm")),
    Sketcher.Constraint("DistanceY", -1, 1, 0, 2, Q("14 mm")),
    Sketcher.Constraint("DistanceX", 0, 1, 0, 2, Q("23.6002 mm")),
    Sketcher.Constraint("DistanceX", 0, 2, -1, 1, Q("73.143 mm")),
])
pocket9 = doc.addObject("PartDesign::Pocket", "Pocket008")
body.addObject(pocket9)
pocket9.Profile = sketch15
pocket9.Length = 3
pocket9.Reversed = True

sketch16 = doc.addObject("Sketcher::SketchObject", "Sketch015")
body.addObject(sketch16)
sketch16.AttachmentSupport = (doc.XY_Plane, [""])
sketch16.MapMode = "FlatFace"
sketch16.AttachmentOffset = App.Placement(V(0, 0, -95), App.Rotation())
sketch16.addGeometry([
    Part.LineSegment(V(-63.9, 2, 0), V(-68.9, 2, 0)),
    Part.LineSegment(V(-68.9, 2, 0), V(-68.9, 14, 0)),
    Part.LineSegment(V(-68.9, 14, 0), V(-63.9, 14, 0)),
    Part.LineSegment(V(-63.9, 14, 0), V(-63.9, 2, 0)),
    Part.LineSegment(V(-101.1, 14, 0), V(-101.1, 2, 0)),
    Part.LineSegment(V(-101.1, 2, 0), V(-106.1, 2, 0)),
    Part.LineSegment(V(-106.1, 2, 0), V(-106.1, 14, 0)),
    Part.LineSegment(V(-106.1, 14, 0), V(-101.1, 14, 0)),
], False)
sketch16.addConstraint([
    Sketcher.Constraint("Coincident", 0, 2, 1, 1),
    Sketcher.Constraint("Coincident", 1, 2, 2, 1),
    Sketcher.Constraint("Coincident", 2, 2, 3, 1),
    Sketcher.Constraint("Coincident", 3, 2, 0, 1),
    Sketcher.Constraint("Coincident", 4, 2, 5, 1),
    Sketcher.Constraint("Coincident", 5, 2, 6, 1),
    Sketcher.Constraint("Coincident", 6, 2, 7, 1),
    Sketcher.Constraint("Coincident", 7, 2, 4, 1),
    Sketcher.Constraint("Horizontal", 0),
    Sketcher.Constraint("Vertical", 1),
    Sketcher.Constraint("Horizontal", 2),
    Sketcher.Constraint("Vertical", 3),
    Sketcher.Constraint("Vertical", 4),
    Sketcher.Constraint("Horizontal", 5),
    Sketcher.Constraint("Vertical", 6),
    Sketcher.Constraint("Horizontal", 7),
    Sketcher.Constraint("Horizontal", 3, 2, 4, 2),
    Sketcher.Constraint("Horizontal", 2, 2, 6, 2),
    Sketcher.Constraint("Equal", 2, 5),
    Sketcher.Constraint("DistanceX", 0, 2, 0, 1, Q("5 mm")),
    Sketcher.Constraint("DistanceY", 1, 1, 1, 2, Q("12 mm")),
    Sketcher.Constraint("DistanceY", -1, 1, 0, 2, Q("2 mm")),
    Sketcher.Constraint("DistanceX", 0, 2, -1, 1, Q("68.9 mm")),
    Sketcher.Constraint("DistanceX", 4, 2, -1, 1, Q("101.1 mm")),
])
pad7 = doc.addObject("PartDesign::Pad", "Pad006")
body.addObject(pad7)
pad7.Profile = sketch16
pad7.Length = 3

sketch17 = doc.addObject("Sketcher::SketchObject", "Sketch016")
body.addObject(sketch17)
sketch17.AttachmentSupport = (doc.XZ_Plane, [""])
sketch17.MapMode = "FlatFace"
sketch17.addGeometry([
    Part.Circle(V(-6.036, -74.9232, 0), V(0, 0, 1), 3.5),
    Part.Circle(V(-30.0796, -74.9232, 0), V(0, 0, 1), 3.5),
    Part.Circle(V(-30.0796, -43.3906, 0), V(0, 0, 1), 3.5),
    Part.Circle(V(-6.036, -43.3906, 0), V(0, 0, 1), 3.5),
], False)
sketch17.addConstraint([
    Sketcher.Constraint("Equal", 0, 1),
    Sketcher.Constraint("Equal", 1, 2),
    Sketcher.Constraint("Equal", 2, 3),
    Sketcher.Constraint("Horizontal", 0, 3, 1, 3),
    Sketcher.Constraint("Horizontal", 2, 3, 3, 3),
    Sketcher.Constraint("Vertical", 1, 3, 2, 3),
    Sketcher.Constraint("Vertical", 0, 3, 3, 3),
    Sketcher.Constraint("Diameter", 0, Q("7 mm")),
    Sketcher.Constraint("DistanceX", 0, 3, -1, 1, Q("6.036 mm")),
    Sketcher.Constraint("DistanceY", 0, 3, -1, 1, Q("74.9232 mm")),
    Sketcher.Constraint("DistanceX", 1, 3, -1, 1, Q("30.0796 mm")),
    Sketcher.Constraint("DistanceY", 2, 3, -1, 1, Q("43.3906 mm")),
])
pocket10 = doc.addObject("PartDesign::Pocket", "Pocket009")
body.addObject(pocket10)
pocket10.Profile = sketch17
pocket10.Length = 2

sketch18 = doc.addObject("Sketcher::SketchObject", "Sketch017")
body.addObject(sketch18)
sketch18.AttachmentSupport = (doc.XZ_Plane, [""])
sketch18.MapMode = "FlatFace"
sketch18.AttachmentOffset = App.Placement(V(0, 0, -2), App.Rotation())
sketch18.addGeometry([
    Part.Circle(V(-95.9115, -41.8497, 0), V(0, 0, 1), 2),
    Part.Circle(V(-95.9115, -78.8497, 0), V(0, 0, 1), 2),
], False)
sketch18.addConstraint([
    Sketcher.Constraint("Equal", 0, 1),
    Sketcher.Constraint("Vertical", 0, 3, 1, 3),
    Sketcher.Constraint("Diameter", 0, Q("4 mm")),
    Sketcher.Constraint("DistanceY", 1, 3, 0, 3, Q("37 mm")),
    Sketcher.Constraint("DistanceX", 0, 3, -1, 1, Q("95.9115 mm")),
    Sketcher.Constraint("DistanceY", 0, 3, -1, 1, Q("41.8497 mm")),
])
pocket11 = doc.addObject("PartDesign::Pocket", "Pocket010")
body.addObject(pocket11)
pocket11.Profile = sketch18
pocket11.Length = 3
pocket11.Reversed = True

sketch19 = doc.addObject("Sketcher::SketchObject", "Sketch018")
body.addObject(sketch19)
sketch19.AttachmentSupport = (doc.XZ_Plane, [""])
sketch19.MapMode = "FlatFace"
sketch19.addGeometry([
    Part.LineSegment(V(-66.6168, -37.1992, 0), V(-66.6168, -64.1992, 0)),
    Part.LineSegment(V(-66.6168, -64.1992, 0), V(-60.6168, -64.1992, 0)),
    Part.LineSegment(V(-60.6168, -64.1992, 0), V(-60.6168, -37.1992, 0)),
    Part.LineSegment(V(-60.6168, -37.1992, 0), V(-66.6168, -37.1992, 0)),
    Part.LineSegment(V(-16.4168, -37.1992, 0), V(-22.4168, -37.1992, 0)),
    Part.LineSegment(V(-22.4168, -37.1992, 0), V(-22.4168, -64.1992, 0)),
    Part.LineSegment(V(-22.4168, -64.1992, 0), V(-16.4168, -64.1992, 0)),
    Part.LineSegment(V(-16.4168, -64.1992, 0), V(-16.4168, -37.1992, 0)),
], False)
sketch19.addConstraint([
    Sketcher.Constraint("Coincident", 0, 2, 1, 1),
    Sketcher.Constraint("Coincident", 1, 2, 2, 1),
    Sketcher.Constraint("Coincident", 2, 2, 3, 1),
    Sketcher.Constraint("Coincident", 3, 2, 0, 1),
    Sketcher.Constraint("Coincident", 4, 2, 5, 1),
    Sketcher.Constraint("Coincident", 5, 2, 6, 1),
    Sketcher.Constraint("Coincident", 6, 2, 7, 1),
    Sketcher.Constraint("Coincident", 7, 2, 4, 1),
    Sketcher.Constraint("Vertical", 0),
    Sketcher.Constraint("Horizontal", 1),
    Sketcher.Constraint("Vertical", 2),
    Sketcher.Constraint("Horizontal", 3),
    Sketcher.Constraint("Horizontal", 4),
    Sketcher.Constraint("Vertical", 5),
    Sketcher.Constraint("Horizontal", 6),
    Sketcher.Constraint("Vertical", 7),
    Sketcher.Constraint("Horizontal", 3, 2, 4, 2),
    Sketcher.Constraint("Horizontal", 1, 2, 5, 2),
    Sketcher.Constraint("Equal", 3, 4),
    Sketcher.Constraint("DistanceX", 1, 1, 1, 2, Q("6 mm")),
    Sketcher.Constraint("DistanceY", 0, 2, 0, 1, Q("27 mm")),
    Sketcher.Constraint("DistanceX", 2, 2, 4, 2, Q("38.2 mm")),
    Sketcher.Constraint("DistanceY", 2, 2, -1, 1, Q("37.1992 mm")),
    Sketcher.Constraint("DistanceX", 6, 2, -1, 1, Q("16.4168 mm")),
])
pocket12 = doc.addObject("PartDesign::Pocket", "Pocket011")
body.addObject(pocket12)
pocket12.Profile = sketch19
pocket12.Length = 8

doc.recompute()
